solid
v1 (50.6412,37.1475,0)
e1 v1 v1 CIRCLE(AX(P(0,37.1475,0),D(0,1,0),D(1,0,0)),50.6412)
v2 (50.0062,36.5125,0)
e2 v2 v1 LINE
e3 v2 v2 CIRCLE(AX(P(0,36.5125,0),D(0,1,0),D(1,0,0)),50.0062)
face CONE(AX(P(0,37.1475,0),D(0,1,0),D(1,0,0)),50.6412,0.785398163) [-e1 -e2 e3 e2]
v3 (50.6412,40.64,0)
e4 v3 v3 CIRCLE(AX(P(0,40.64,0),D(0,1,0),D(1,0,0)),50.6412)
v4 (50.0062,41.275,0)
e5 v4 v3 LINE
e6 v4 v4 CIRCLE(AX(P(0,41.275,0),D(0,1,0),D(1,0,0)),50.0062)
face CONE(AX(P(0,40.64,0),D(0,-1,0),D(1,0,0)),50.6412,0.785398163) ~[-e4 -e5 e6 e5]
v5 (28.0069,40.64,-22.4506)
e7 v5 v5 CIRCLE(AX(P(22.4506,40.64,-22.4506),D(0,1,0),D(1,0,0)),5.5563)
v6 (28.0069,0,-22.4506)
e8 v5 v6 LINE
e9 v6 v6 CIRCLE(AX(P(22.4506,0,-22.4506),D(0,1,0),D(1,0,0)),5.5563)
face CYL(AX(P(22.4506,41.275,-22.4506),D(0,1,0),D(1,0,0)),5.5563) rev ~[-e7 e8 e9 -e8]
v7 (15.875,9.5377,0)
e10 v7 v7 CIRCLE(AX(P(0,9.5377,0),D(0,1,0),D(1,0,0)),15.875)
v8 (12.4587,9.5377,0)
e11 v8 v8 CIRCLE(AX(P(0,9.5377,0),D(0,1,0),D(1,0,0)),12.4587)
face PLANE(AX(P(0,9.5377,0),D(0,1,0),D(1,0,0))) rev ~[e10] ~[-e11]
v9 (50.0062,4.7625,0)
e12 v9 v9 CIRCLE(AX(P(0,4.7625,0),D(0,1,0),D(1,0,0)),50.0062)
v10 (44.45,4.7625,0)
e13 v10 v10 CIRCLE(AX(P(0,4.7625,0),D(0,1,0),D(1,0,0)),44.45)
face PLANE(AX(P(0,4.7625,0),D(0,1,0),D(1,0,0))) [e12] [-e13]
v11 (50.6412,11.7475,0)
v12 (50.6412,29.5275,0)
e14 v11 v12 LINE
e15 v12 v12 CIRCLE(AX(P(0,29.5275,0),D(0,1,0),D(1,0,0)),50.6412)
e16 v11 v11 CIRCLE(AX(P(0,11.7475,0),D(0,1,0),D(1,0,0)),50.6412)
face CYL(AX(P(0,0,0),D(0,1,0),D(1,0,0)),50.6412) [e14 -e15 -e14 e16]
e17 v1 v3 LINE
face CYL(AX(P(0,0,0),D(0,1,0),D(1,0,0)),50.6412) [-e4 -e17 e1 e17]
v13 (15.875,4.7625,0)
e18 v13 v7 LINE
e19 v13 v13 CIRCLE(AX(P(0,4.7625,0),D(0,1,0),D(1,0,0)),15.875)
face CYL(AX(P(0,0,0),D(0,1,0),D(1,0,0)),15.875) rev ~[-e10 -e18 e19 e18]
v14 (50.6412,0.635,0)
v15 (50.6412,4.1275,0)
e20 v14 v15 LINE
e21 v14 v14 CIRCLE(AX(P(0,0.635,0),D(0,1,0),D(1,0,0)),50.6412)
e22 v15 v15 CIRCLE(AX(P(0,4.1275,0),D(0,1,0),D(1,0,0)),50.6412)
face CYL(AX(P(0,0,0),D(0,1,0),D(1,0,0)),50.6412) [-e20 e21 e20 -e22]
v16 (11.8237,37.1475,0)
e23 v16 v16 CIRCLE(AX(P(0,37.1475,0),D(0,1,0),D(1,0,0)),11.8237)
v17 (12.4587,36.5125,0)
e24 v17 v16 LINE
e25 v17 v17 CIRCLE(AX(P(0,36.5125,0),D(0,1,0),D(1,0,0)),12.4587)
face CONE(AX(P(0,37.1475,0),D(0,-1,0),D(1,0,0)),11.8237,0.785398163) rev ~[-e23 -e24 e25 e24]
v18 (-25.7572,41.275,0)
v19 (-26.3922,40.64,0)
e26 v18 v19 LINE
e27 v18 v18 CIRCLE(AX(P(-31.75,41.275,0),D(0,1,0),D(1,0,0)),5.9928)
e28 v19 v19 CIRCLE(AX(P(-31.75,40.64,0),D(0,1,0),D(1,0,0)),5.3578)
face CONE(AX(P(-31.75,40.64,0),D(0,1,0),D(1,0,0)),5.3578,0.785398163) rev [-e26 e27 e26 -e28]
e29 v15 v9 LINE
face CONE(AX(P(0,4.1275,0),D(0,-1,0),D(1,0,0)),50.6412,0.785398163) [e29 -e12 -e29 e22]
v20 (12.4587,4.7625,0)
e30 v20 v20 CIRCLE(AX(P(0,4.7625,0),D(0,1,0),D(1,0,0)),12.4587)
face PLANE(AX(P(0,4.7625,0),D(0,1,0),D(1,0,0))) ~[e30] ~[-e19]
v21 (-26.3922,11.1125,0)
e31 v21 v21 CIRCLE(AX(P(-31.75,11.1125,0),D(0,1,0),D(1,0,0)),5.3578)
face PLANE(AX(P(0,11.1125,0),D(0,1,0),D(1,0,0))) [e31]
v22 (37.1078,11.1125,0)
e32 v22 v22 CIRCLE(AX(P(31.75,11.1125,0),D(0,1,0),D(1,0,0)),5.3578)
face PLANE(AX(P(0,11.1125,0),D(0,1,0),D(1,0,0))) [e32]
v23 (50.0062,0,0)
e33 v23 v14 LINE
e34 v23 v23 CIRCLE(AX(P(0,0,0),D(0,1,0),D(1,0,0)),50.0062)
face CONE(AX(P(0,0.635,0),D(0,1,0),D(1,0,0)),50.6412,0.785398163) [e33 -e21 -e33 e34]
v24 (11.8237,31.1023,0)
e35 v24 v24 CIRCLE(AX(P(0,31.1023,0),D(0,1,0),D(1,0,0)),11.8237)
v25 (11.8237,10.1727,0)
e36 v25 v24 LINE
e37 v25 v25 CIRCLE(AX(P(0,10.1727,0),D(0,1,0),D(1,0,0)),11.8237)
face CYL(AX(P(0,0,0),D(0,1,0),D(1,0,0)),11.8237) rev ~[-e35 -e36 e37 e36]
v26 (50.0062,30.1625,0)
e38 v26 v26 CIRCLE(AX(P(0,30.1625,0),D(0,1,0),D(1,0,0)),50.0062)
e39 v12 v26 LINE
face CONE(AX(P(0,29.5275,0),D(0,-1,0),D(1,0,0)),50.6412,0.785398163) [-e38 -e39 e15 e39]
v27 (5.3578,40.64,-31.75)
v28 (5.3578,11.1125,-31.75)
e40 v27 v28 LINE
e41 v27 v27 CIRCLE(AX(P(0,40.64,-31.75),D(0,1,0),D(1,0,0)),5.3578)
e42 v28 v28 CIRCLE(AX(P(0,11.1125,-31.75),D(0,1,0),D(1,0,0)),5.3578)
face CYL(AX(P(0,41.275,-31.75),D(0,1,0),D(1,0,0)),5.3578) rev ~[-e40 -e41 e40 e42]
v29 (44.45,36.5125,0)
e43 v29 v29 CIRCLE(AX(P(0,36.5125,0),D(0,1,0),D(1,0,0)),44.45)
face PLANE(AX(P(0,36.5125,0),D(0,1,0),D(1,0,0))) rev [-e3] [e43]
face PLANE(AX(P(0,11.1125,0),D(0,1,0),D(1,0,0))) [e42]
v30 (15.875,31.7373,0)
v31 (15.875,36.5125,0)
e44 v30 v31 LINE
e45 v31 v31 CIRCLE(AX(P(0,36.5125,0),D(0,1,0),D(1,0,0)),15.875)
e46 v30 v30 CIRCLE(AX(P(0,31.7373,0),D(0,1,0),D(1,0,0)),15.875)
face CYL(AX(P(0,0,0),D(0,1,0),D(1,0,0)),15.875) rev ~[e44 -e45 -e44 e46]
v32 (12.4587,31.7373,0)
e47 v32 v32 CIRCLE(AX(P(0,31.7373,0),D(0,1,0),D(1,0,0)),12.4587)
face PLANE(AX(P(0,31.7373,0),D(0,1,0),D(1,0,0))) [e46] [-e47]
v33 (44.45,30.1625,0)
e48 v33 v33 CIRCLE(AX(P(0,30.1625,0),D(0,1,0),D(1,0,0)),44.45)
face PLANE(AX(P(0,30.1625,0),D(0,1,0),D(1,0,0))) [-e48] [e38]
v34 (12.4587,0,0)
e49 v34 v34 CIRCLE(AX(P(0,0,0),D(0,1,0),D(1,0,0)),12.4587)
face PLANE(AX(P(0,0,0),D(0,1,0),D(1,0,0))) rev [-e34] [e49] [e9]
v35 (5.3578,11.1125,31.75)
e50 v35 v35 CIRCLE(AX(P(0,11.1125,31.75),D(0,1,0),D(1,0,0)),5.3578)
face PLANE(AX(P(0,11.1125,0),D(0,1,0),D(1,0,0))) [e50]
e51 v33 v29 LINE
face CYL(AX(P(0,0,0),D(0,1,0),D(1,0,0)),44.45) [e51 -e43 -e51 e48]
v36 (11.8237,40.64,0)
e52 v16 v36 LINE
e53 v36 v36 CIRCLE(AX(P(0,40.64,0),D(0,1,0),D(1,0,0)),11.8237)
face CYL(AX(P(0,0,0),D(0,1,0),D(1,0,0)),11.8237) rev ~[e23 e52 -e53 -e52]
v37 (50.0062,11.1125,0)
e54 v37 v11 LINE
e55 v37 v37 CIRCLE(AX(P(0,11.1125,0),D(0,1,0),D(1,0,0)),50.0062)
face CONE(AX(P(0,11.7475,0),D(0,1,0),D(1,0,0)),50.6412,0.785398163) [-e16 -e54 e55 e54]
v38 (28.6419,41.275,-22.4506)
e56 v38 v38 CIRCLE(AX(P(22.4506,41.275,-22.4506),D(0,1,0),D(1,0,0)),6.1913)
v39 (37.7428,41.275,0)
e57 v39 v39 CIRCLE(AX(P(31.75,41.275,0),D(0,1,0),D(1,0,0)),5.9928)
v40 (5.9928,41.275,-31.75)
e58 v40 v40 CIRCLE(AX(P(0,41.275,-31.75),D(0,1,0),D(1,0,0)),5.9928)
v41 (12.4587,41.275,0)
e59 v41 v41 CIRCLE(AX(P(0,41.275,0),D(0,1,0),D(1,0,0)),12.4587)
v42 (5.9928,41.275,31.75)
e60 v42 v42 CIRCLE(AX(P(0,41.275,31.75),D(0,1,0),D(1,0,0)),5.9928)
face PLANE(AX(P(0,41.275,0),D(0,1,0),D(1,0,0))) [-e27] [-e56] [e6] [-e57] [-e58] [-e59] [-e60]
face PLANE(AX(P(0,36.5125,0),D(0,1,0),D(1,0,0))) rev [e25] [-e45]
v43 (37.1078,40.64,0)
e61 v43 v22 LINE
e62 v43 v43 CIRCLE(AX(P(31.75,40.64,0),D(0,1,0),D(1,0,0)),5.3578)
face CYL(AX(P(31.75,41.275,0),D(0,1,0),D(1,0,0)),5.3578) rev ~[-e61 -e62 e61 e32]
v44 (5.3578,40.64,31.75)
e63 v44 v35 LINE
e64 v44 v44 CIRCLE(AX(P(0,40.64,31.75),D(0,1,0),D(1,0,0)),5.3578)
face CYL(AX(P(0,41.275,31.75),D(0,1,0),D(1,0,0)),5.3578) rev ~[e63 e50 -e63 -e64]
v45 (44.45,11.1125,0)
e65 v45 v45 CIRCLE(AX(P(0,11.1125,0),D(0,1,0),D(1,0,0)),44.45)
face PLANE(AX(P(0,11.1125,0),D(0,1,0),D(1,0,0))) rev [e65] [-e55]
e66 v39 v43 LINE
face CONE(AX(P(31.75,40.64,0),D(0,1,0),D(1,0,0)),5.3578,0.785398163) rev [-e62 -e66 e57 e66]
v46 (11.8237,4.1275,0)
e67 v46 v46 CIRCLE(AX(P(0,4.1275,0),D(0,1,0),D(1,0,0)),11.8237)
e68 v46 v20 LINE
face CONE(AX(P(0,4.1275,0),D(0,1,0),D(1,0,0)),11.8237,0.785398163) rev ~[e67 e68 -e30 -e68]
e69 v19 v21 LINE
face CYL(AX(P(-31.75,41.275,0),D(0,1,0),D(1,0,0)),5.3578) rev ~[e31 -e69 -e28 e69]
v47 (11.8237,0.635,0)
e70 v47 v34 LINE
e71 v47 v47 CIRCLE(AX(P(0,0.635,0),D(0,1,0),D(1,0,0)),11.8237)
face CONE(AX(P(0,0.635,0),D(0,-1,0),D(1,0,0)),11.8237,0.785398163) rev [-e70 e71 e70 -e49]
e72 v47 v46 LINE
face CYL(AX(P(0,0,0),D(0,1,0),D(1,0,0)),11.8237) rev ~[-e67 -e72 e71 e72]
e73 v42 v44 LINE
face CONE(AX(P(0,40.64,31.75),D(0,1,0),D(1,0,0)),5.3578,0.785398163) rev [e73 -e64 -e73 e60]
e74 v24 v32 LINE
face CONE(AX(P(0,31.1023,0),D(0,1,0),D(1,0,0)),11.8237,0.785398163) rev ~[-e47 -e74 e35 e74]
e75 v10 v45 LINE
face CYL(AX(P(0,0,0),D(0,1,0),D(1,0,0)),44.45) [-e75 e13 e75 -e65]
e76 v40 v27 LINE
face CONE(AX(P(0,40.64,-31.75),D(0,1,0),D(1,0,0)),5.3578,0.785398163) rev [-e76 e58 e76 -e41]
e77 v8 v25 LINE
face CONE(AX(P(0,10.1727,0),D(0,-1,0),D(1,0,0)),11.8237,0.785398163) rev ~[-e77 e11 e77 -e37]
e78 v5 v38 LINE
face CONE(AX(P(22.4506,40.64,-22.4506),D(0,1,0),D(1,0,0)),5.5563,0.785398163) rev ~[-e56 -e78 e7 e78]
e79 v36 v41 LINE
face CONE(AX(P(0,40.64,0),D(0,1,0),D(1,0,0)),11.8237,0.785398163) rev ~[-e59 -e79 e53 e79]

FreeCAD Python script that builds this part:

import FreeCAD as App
import Part
import Sketcher
Q = App.Units.Quantity


def edges_at(feature, points):
    """Names of the edges that pass closest to the given points."""
    edges = feature.Shape.Edges
    near = lambda p: min(range(len(edges)), key=lambda i: edges[i].distToShape(Part.Vertex(*p))[0])
    return sorted({f"Edge{near(p) + 1}" for p in points})

doc = App.newDocument("Part")
params = doc.addObject("Spreadsheet::Sheet", "Params")
for row, (alias, value) in enumerate([
    ("sketch1_height", "0.25 in"),
    ("sketch1_height2", "0.75 in"),
    ("sketch1_height3", "0.1875 in"),
    ("sketch1_height4", "0.188 in"),
    ("revolution_angle", "360 deg"),
    ("chamfer_size", "0.025 in"),
    ("sketch2_diameter", "0.421874 in"),
    ("pocket1_length", "1.1875 in"),
    ("sketch3_diameter", "0.4375 in"),
    ("pocket2_length", "13.875 in"),
    ("chamfer2_size", "0.025 in"),
], start=1):
    params.set(f"A{row}", alias)
    params.set(f"B{row}", "=" + value)
    params.setAlias(f"B{row}", alias)

body = doc.addObject("PartDesign::Body", "Body")

sketch1 = doc.addObject("Sketcher::SketchObject", "Sketch")
body.addObject(sketch1)
sketch1.AttachmentSupport = (doc.XY_Plane, [""])
sketch1.MapMode = "FlatFace"
sketch1.addGeometry(Part.LineSegment(App.Vector(11.8, 4.8, 0), App.Vector(11.8, 0, 0)), False)
sketch1.addGeometry(Part.LineSegment(App.Vector(11.8, 0, 0), App.Vector(50.6, 0, 0)), False)
sketch1.addGeometry(Part.LineSegment(App.Vector(50.6, 0, 0), App.Vector(50.6, 4.8, 0)), False)
sketch1.addGeometry(Part.LineSegment(App.Vector(50.6, 4.8, 0), App.Vector(44.5, 4.8, 0)), False)
sketch1.addGeometry(Part.LineSegment(App.Vector(44.5, 4.8, 0), App.Vector(44.5, 11.1, 0)), False)
sketch1.addGeometry(Part.LineSegment(App.Vector(44.5, 11.1, 0), App.Vector(50.6, 11.1, 0)), False)
sketch1.addGeometry(Part.LineSegment(App.Vector(50.6, 11.1, 0), App.Vector(50.6, 30.2, 0)), False)
sketch1.addGeometry(Part.LineSegment(App.Vector(50.6, 30.2, 0), App.Vector(44.5, 30.2, 0)), False)
sketch1.addGeometry(Part.LineSegment(App.Vector(44.5, 30.2, 0), App.Vector(44.5, 36.5, 0)), False)
sketch1.addGeometry(Part.LineSegment(App.Vector(44.5, 36.5, 0), App.Vector(50.6, 36.5, 0)), False)
sketch1.addGeometry(Part.LineSegment(App.Vector(50.6, 36.5, 0), App.Vector(50.6, 41.3, 0)), False)
sketch1.addGeometry(Part.LineSegment(App.Vector(50.6, 41.3, 0), App.Vector(11.8, 41.3, 0)), False)
sketch1.addGeometry(Part.LineSegment(App.Vector(11.8, 41.3, 0), App.Vector(11.8, 36.5, 0)), False)
sketch1.addGeometry(Part.LineSegment(App.Vector(11.8, 36.5, 0), App.Vector(15.9, 36.5, 0)), False)
sketch1.addGeometry(Part.LineSegment(App.Vector(15.9, 36.5, 0), App.Vector(15.9, 31.7, 0)), False)
sketch1.addGeometry(Part.LineSegment(App.Vector(15.9, 31.7, 0), App.Vector(11.8, 31.7, 0)), False)
sketch1.addGeometry(Part.LineSegment(App.Vector(11.8, 31.7, 0), App.Vector(11.8, 9.5, 0)), False)
sketch1.addGeometry(Part.LineSegment(App.Vector(11.8, 9.5, 0), App.Vector(15.9, 9.5, 0)), False)
sketch1.addGeometry(Part.LineSegment(App.Vector(15.9, 9.5, 0), App.Vector(15.9, 4.8, 0)), False)
sketch1.addGeometry(Part.LineSegment(App.Vector(15.9, 4.8, 0), App.Vector(11.8, 4.8, 0)), False)
sketch1.addConstraint(Sketcher.Constraint("Coincident", 0, 2, 1, 1))
sketch1.addConstraint(Sketcher.Constraint("Coincident", 1, 2, 2, 1))
sketch1.addConstraint(Sketcher.Constraint("Coincident", 2, 2, 3, 1))
sketch1.addConstraint(Sketcher.Constraint("Coincident", 3, 2, 4, 1))
sketch1.addConstraint(Sketcher.Constraint("Coincident", 4, 2, 5, 1))
sketch1.addConstraint(Sketcher.Constraint("Coincident", 5, 2, 6, 1))
sketch1.addConstraint(Sketcher.Constraint("Coincident", 6, 2, 7, 1))
sketch1.addConstraint(Sketcher.Constraint("Coincident", 7, 2, 8, 1))
sketch1.addConstraint(Sketcher.Constraint("Coincident", 8, 2, 9, 1))
sketch1.addConstraint(Sketcher.Constraint("Coincident", 9, 2, 10, 1))
sketch1.addConstraint(Sketcher.Constraint("Coincident", 10, 2, 11, 1))
sketch1.addConstraint(Sketcher.Constraint("Coincident", 11, 2, 12, 1))
sketch1.addConstraint(Sketcher.Constraint("Coincident", 12, 2, 13, 1))
sketch1.addConstraint(Sketcher.Constraint("Coincident", 13, 2, 14, 1))
sketch1.addConstraint(Sketcher.Constraint("Coincident", 14, 2, 15, 1))
sketch1.addConstraint(Sketcher.Constraint("Coincident", 15, 2, 16, 1))
sketch1.addConstraint(Sketcher.Constraint("Coincident", 16, 2, 17, 1))
sketch1.addConstraint(Sketcher.Constraint("Coincident", 17, 2, 18, 1))
sketch1.addConstraint(Sketcher.Constraint("Coincident", 18, 2, 19, 1))
sketch1.addConstraint(Sketcher.Constraint("Coincident", 19, 2, 0, 1))
sketch1.addConstraint(Sketcher.Constraint("Vertical", 0))
sketch1.addConstraint(Sketcher.Constraint("Horizontal", 1))
sketch1.addConstraint(Sketcher.Constraint("Vertical", 2))
sketch1.addConstraint(Sketcher.Constraint("Horizontal", 3))
sketch1.addConstraint(Sketcher.Constraint("Vertical", 4))
sketch1.addConstraint(Sketcher.Constraint("Horizontal", 5))
sketch1.addConstraint(Sketcher.Constraint("Vertical", 6))
sketch1.addConstraint(Sketcher.Constraint("Horizontal", 7))
sketch1.addConstraint(Sketcher.Constraint("Vertical", 8))
sketch1.addConstraint(Sketcher.Constraint("Horizontal", 9))
sketch1.addConstraint(Sketcher.Constraint("Vertical", 10))
sketch1.addConstraint(Sketcher.Constraint("Horizontal", 11))
sketch1.addConstraint(Sketcher.Constraint("Vertical", 12))
sketch1.addConstraint(Sketcher.Constraint("Horizontal", 13))
sketch1.addConstraint(Sketcher.Constraint("Vertical", 14))
sketch1.addConstraint(Sketcher.Constraint("Horizontal", 15))
sketch1.addConstraint(Sketcher.Constraint("Vertical", 16))
sketch1.addConstraint(Sketcher.Constraint("Horizontal", 17))
sketch1.addConstraint(Sketcher.Constraint("Vertical", 18))
sketch1.addConstraint(Sketcher.Constraint("Horizontal", 19))
sketch1.addConstraint(Sketcher.Constraint("PointOnObject", 0, 2, -1))
sketch1.addConstraint(Sketcher.Constraint("Horizontal", 9, 2, 12, 2))
sketch1.addConstraint(Sketcher.Constraint("Horizontal", 3, 2, 18, 2))
sketch1.addConstraint(Sketcher.Constraint("Vertical", 2, 2, 5, 2))
sketch1.addConstraint(Sketcher.Constraint("Vertical", 4, 2, 7, 2))
sketch1.addConstraint(Sketcher.Constraint("Vertical", 6, 2, 9, 2))
sketch1.addConstraint(Sketcher.Constraint("Vertical", 0, 2, 11, 2))
sketch1.addConstraint(Sketcher.Constraint("Vertical", 12, 2, 15, 2))
sketch1.addConstraint(Sketcher.Constraint("Vertical", 14, 2, 17, 2))
sketch1.addConstraint(Sketcher.Constraint("Equal", 4, 8))
sketch1.addConstraint(Sketcher.Constraint("Equal", 2, 10))
sketch1.addConstraint(Sketcher.Constraint("Equal", 14, 18))
sketch1.addConstraint(Sketcher.Constraint("DistanceY", 4, 1, 4, 2, Q("0.25 in")))
sketch1.addConstraint(Sketcher.Constraint("DistanceY", 6, 1, 6, 2, Q("0.75 in")))
sketch1.addConstraint(Sketcher.Constraint("DistanceY", 0, 2, 0, 1, Q("0.1875 in")))
sketch1.addConstraint(Sketcher.Constraint("DistanceY", 14, 2, 14, 1, Q("0.188 in")))
sketch1.addConstraint(Sketcher.Constraint("DistanceX", -1, 1, 3, 2, Q("1.75 in")))
sketch1.addConstraint(Sketcher.Constraint("DistanceX", -1, 1, 13, 2, Q("0.625 in")))
sketch1.addConstraint(Sketcher.Constraint("DistanceX", -1, 1, 0, 2, Q("0.4655 in")))
sketch1.addConstraint(Sketcher.Constraint("DistanceX", -1, 1, 1, 2, Q("50.6412 mm")))
sketch1.setExpression("Constraints[52]", "Params.sketch1_height")
sketch1.setExpression("Constraints[53]", "Params.sketch1_height2")
sketch1.setExpression("Constraints[54]", "Params.sketch1_height3")
sketch1.setExpression("Constraints[55]", "Params.sketch1_height4")
revolution = doc.addObject("PartDesign::Revolution", "Revolution")
body.addObject(revolution)
revolution.Profile = sketch1
revolution.ReferenceAxis = (sketch1, ["V_Axis"])
revolution.setExpression("Angle", "Params.revolution_angle")
doc.recompute()

chamfer = doc.addObject("PartDesign::Chamfer", "Chamfer")
body.addObject(chamfer)
chamfer.Base = (revolution, edges_at(revolution, [
    (-50.641, 0, 0),
    (-50.641, 4.763, 0),
    (-50.641, 11.113, 0),
    (-50.641, 30.163, 0),
    (-50.641, 36.513, 0),
    (-50.641, 41.275, 0),
    (-11.824, 41.275, 0),
    (-11.824, 36.513, 0),
    (-11.824, 31.737, 0),
    (-11.824, 9.538, 0),
    (-11.824, 4.763, 0),
    (-11.824, 0, 0),
]))
chamfer.setExpression("Size", "Params.chamfer_size")

sketch2 = doc.addObject("Sketcher::SketchObject", "Sketch001")
body.addObject(sketch2)
sketch2.AttachmentSupport = (doc.XZ_Plane, [""])
sketch2.MapMode = "FlatFace"
sketch2.AttachmentOffset = App.Placement(App.Vector(0, 0, -1.625 * 25.4), App.Rotation())
sketch2.addGeometry(Part.Circle(App.Vector(0, -32, 0), App.Vector(0, 0, 1), 5), False)
sketch2.addGeometry(Part.Circle(App.Vector(-32, 0, 0), App.Vector(0, 0, 1), 5), False)
sketch2.addGeometry(Part.Circle(App.Vector(0, 32, 0), App.Vector(0, 0, 1), 5), False)
sketch2.addGeometry(Part.Circle(App.Vector(32, 0, 0), App.Vector(0, 0, 1), 5), False)
sketch2.addConstraint(Sketcher.Constraint("Equal", 0, 1))
sketch2.addConstraint(Sketcher.Constraint("Equal", 1, 2))
sketch2.addConstraint(Sketcher.Constraint("Equal", 2, 3))
sketch2.addConstraint(Sketcher.Constraint("Symmetric", 0, 3, 2, 3, -1, 1))
sketch2.addConstraint(Sketcher.Constraint("Symmetric", 1, 3, 3, 3, -1, 1))
sketch2.addConstraint(Sketcher.Constraint("PointOnObject", 0, 3, -2))
sketch2.addConstraint(Sketcher.Constraint("PointOnObject", 1, 3, -1))
sketch2.addConstraint(Sketcher.Constraint("Diameter", 0, Q("0.421874 in")))
sketch2.addConstraint(Sketcher.Constraint("DistanceY", 0, 3, -1, 1, Q("1.25 in")))
sketch2.addConstraint(Sketcher.Constraint("DistanceX", 1, 3, -1, 1, Q("1.25 in")))
sketch2.setExpression("Constraints[7]", "Params.sketch2_diameter")
pocket1 = doc.addObject("PartDesign::Pocket", "Pocket")
body.addObject(pocket1)
pocket1.Profile = sketch2
pocket1.setExpression("Length", "Params.pocket1_length")
pocket1.Reversed = True

sketch3 = doc.addObject("Sketcher::SketchObject", "Sketch002")
body.addObject(sketch3)
sketch3.AttachmentSupport = (doc.XZ_Plane, [""])
sketch3.MapMode = "FlatFace"
sketch3.AttachmentOffset = App.Placement(App.Vector(0, 0, -1.625 * 25.4), App.Rotation())
sketch3.addGeometry(Part.Circle(App.Vector(22, -22, 0), App.Vector(0, 0, 1), 6), False)
sketch3.addConstraint(Sketcher.Constraint("Diameter", 0, Q("0.4375 in")))
sketch3.addConstraint(Sketcher.Constraint("DistanceX", -1, 1, 0, 3, Q("22.4506 mm")))
sketch3.addConstraint(Sketcher.Constraint("DistanceY", 0, 3, -1, 1, Q("22.4506 mm")))
sketch3.setExpression("Constraints[0]", "Params.sketch3_diameter")
pocket2 = doc.addObject("PartDesign::Pocket", "Pocket001")
body.addObject(pocket2)
pocket2.Profile = sketch3
pocket2.setExpression("Length", "Params.pocket2_length")
pocket2.Reversed = True
doc.recompute()

chamfer2 = doc.addObject("PartDesign::Chamfer", "Chamfer001")
body.addObject(chamfer2)
chamfer2.Base = (pocket2, edges_at(pocket2, [
    (-37.108, 41.275, 0),
    (-5.358, 41.275, -31.75),
    (16.894, 41.275, -22.451),
    (26.392, 41.275, 0),
    (-5.358, 41.275, 31.75),
]))
chamfer2.setExpression("Size", "Params.chamfer2_size")

doc.recompute()
